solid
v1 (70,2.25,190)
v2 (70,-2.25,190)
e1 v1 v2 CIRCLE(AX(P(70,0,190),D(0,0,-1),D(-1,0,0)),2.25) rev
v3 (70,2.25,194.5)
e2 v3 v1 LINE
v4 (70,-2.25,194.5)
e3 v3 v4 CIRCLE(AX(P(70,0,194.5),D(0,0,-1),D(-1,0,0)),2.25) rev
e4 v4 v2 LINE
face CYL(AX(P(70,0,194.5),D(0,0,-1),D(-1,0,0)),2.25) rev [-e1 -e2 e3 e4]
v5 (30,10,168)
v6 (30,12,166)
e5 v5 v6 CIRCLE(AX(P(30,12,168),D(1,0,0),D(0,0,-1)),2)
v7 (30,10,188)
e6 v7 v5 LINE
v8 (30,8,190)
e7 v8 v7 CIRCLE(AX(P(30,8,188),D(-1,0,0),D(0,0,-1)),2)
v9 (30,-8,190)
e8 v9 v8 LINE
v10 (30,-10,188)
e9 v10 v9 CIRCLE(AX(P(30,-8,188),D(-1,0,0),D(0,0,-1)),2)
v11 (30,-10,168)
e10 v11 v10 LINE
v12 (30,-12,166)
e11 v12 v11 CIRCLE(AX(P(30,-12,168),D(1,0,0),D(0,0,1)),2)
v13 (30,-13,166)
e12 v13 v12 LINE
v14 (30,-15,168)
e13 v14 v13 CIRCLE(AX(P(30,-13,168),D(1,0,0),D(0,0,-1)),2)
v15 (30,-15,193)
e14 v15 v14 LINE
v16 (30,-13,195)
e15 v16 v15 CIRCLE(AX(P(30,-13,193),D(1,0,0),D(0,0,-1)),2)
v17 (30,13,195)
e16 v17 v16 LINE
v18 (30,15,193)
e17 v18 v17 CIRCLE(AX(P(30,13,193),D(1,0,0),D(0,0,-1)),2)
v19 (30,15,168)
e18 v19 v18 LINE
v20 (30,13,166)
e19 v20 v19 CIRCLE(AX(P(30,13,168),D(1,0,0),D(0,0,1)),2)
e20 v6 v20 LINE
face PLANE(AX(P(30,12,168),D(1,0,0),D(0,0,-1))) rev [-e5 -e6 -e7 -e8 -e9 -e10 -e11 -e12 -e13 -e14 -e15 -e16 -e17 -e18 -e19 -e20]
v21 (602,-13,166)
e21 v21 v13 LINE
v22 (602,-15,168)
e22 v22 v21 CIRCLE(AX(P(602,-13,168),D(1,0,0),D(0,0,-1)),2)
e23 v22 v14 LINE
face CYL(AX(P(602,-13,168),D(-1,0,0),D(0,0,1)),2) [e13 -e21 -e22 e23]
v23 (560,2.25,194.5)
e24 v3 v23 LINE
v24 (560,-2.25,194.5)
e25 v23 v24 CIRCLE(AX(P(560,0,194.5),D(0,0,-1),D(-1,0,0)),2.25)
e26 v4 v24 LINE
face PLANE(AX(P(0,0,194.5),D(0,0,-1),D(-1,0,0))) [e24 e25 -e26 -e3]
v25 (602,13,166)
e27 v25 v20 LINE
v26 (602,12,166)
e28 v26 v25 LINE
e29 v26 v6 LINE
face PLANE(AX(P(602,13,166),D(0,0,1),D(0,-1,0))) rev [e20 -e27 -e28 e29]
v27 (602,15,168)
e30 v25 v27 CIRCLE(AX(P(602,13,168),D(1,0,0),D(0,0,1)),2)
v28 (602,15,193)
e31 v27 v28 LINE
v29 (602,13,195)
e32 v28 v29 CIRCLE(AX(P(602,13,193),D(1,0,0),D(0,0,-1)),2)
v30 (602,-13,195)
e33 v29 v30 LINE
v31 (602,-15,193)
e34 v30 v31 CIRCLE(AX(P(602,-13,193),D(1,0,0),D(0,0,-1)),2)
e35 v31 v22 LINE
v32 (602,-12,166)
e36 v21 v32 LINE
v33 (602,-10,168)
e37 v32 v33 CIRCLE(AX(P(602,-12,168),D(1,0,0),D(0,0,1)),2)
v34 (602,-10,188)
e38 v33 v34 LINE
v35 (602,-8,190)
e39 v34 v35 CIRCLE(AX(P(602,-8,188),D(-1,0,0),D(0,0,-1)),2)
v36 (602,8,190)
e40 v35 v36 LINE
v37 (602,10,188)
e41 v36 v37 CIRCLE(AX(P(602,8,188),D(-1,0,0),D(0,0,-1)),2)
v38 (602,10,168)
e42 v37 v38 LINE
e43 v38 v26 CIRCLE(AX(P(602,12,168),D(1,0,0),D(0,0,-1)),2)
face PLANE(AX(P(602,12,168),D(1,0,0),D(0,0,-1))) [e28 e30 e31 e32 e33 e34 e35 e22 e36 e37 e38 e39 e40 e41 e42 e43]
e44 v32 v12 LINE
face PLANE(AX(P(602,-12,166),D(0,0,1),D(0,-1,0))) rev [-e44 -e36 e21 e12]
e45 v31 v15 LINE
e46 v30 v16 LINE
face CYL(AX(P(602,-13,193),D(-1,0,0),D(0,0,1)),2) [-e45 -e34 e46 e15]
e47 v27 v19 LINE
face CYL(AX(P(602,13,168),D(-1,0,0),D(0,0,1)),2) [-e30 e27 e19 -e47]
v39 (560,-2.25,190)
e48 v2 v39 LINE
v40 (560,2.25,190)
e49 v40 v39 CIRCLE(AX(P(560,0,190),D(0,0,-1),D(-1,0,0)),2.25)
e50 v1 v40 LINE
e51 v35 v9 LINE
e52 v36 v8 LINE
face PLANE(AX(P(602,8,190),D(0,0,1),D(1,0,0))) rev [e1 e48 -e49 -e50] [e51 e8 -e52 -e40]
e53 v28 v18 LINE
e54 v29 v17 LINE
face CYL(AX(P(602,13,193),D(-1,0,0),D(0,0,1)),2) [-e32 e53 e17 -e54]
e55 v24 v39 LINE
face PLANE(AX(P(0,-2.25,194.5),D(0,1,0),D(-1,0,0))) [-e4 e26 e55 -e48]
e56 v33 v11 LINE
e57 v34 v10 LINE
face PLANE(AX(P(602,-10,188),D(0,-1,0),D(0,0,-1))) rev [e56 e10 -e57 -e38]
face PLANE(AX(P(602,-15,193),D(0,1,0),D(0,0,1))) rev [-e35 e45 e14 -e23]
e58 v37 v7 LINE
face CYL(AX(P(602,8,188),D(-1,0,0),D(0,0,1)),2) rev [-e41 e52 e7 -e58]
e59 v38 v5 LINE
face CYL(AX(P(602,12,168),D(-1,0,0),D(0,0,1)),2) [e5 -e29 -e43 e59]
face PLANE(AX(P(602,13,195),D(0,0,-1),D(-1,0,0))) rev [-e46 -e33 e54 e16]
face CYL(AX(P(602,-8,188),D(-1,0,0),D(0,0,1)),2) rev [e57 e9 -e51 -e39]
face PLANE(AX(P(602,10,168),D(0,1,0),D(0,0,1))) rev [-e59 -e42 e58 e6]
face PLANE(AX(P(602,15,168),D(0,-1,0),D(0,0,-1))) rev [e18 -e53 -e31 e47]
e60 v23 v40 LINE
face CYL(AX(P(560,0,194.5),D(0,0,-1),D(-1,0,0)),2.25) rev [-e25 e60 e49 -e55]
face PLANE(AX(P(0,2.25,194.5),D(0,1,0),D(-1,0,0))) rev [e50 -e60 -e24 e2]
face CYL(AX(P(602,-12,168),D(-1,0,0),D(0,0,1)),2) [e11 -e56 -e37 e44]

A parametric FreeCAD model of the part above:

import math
import FreeCAD as App
import Part
import Sketcher
from FreeCAD import Vector
Q = App.Units.Quantity

doc = App.newDocument("Part")
body = doc.addObject("PartDesign::Body", "Body")

# Sketch on YZ plane
sketch1 = body.newObject("Sketcher::SketchObject", "Sketch")
sketch1.AttachmentSupport = (doc.getObject("YZ_Plane"), [""])
sketch1.MapMode = "FlatFace"
sketch1.AttachmentOffset = App.Placement(Vector(0, 0, 30), App.Rotation())
sketch1.addGeometry([
    Part.LineSegment(Vector(10, 188, 0), Vector(10, 168, 0)),  # 0
    Part.ArcOfCircle(Part.Circle(Vector(12, 168, 0), Vector(0, 0, 1), 2), math.radians(-180), math.radians(-90)),  # 1
    Part.LineSegment(Vector(12, 166, 0), Vector(13, 166, 0)),  # 2
    Part.ArcOfCircle(Part.Circle(Vector(13, 168, 0), Vector(0, 0, 1), 2), math.radians(-90), math.radians(0)),  # 3
    Part.LineSegment(Vector(15, 168, 0), Vector(15, 193, 0)),  # 4
    Part.ArcOfCircle(Part.Circle(Vector(13, 193, 0), Vector(0, 0, 1), 2), math.radians(0), math.radians(90)),  # 5
    Part.LineSegment(Vector(13, 195, 0), Vector(-13, 195, 0)),  # 6
    Part.ArcOfCircle(Part.Circle(Vector(-13, 193, 0), Vector(0, 0, 1), 2), math.radians(90), math.radians(180)),  # 7
    Part.LineSegment(Vector(-15, 193, 0), Vector(-15, 168, 0)),  # 8
    Part.ArcOfCircle(Part.Circle(Vector(-13, 168, 0), Vector(0, 0, 1), 2), math.radians(-180), math.radians(-90)),  # 9
    Part.LineSegment(Vector(-13, 166, 0), Vector(-12, 166, 0)),  # 10
    Part.ArcOfCircle(Part.Circle(Vector(-12, 168, 0), Vector(0, 0, 1), 2), math.radians(-90), math.radians(0)),  # 11
    Part.LineSegment(Vector(-10, 168, 0), Vector(-10, 188, 0)),  # 12
    Part.ArcOfCircle(Part.Circle(Vector(-8, 188, 0), Vector(0, 0, 1), 2), math.radians(90), math.radians(180)),  # 13
    Part.LineSegment(Vector(-8, 190, 0), Vector(8, 190, 0)),  # 14
    Part.ArcOfCircle(Part.Circle(Vector(8, 188, 0), Vector(0, 0, 1), 2), math.radians(0), math.radians(90)),  # 15
], False)
sketch1.addConstraint([
    Sketcher.Constraint("Tangent", 0, 2, 1, 1),
    Sketcher.Constraint("Tangent", 1, 2, 2, 1),
    Sketcher.Constraint("Tangent", 2, 2, 3, 1),
    Sketcher.Constraint("Tangent", 3, 2, 4, 1),
    Sketcher.Constraint("Tangent", 4, 2, 5, 1),
    Sketcher.Constraint("Tangent", 5, 2, 6, 1),
    Sketcher.Constraint("Tangent", 6, 2, 7, 1),
    Sketcher.Constraint("Tangent", 7, 2, 8, 1),
    Sketcher.Constraint("Tangent", 8, 2, 9, 1),
    Sketcher.Constraint("Tangent", 9, 2, 10, 1),
    Sketcher.Constraint("Tangent", 10, 2, 11, 1),
    Sketcher.Constraint("Tangent", 11, 2, 12, 1),
    Sketcher.Constraint("Tangent", 12, 2, 13, 2),
    Sketcher.Constraint("Tangent", 13, 1, 14, 1),
    Sketcher.Constraint("Tangent", 14, 2, 15, 2),
    Sketcher.Constraint("Tangent", 15, 1, 0, 1),
    Sketcher.Constraint("Vertical", 0),
    Sketcher.Constraint("Horizontal", 2),
    Sketcher.Constraint("Vertical", 4),
    Sketcher.Constraint("Horizontal", 6),
    Sketcher.Constraint("Vertical", 8),
    Sketcher.Constraint("Horizontal", 10),
    Sketcher.Constraint("Vertical", 12),
    Sketcher.Constraint("Horizontal", 14),
    Sketcher.Constraint("Equal", 1, 3),
    Sketcher.Constraint("Equal", 3, 5),
    Sketcher.Constraint("Equal", 5, 7),
    Sketcher.Constraint("Equal", 7, 9),
    Sketcher.Constraint("Equal", 9, 11),
    Sketcher.Constraint("Equal", 11, 13),
    Sketcher.Constraint("Equal", 13, 15),
    Sketcher.Constraint("Symmetric", 3, 3, 9, 3, -2),
    Sketcher.Constraint("Equal", 2, 10),
    Sketcher.Constraint("Radius", 1, Q("2 mm")),
    Sketcher.Constraint("DistanceX", 2, 1, 2, 2, Q("1 mm")),
    Sketcher.Constraint("DistanceX", 6, 2, 6, 1, Q("26 mm")),
    Sketcher.Constraint("DistanceY", 0, 2, 0, 1, Q("20 mm")),
    Sketcher.Constraint("DistanceY", 4, 1, 4, 2, Q("25 mm")),
    Sketcher.Constraint("DistanceY", -1, 1, 1, 3, Q("168 mm")),
])
pad1 = body.newObject("PartDesign::Pad", "Pad")
pad1.Profile = sketch1
pad1.Length = 572

# Sketch on XY plane
sketch2 = body.newObject("Sketcher::SketchObject", "Sketch001")
sketch2.AttachmentSupport = (doc.getObject("XY_Plane"), [""])
sketch2.MapMode = "FlatFace"
sketch2.AttachmentOffset = App.Placement(Vector(0, 0, 190), App.Rotation())
sketch2.addGeometry([
    Part.ArcOfCircle(Part.Circle(Vector(70, 0, 0), Vector(0, 0, 1), 2.2), math.radians(90), math.radians(180)),  # 0
    Part.LineSegment(Vector(70, 2.2, 0), Vector(560, 2.2, 0)),  # 1
    Part.ArcOfCircle(Part.Circle(Vector(560, 0, 0), Vector(0, 0, 1), 2.2), math.radians(0), math.radians(90)),  # 2
    Part.ArcOfCircle(Part.Circle(Vector(560, 0, 0), Vector(0, 0, 1), 2.2), math.radians(-90), math.radians(0)),  # 3
    Part.LineSegment(Vector(560, -2.2, 0), Vector(70, -2.2, 0)),  # 4
    Part.ArcOfCircle(Part.Circle(Vector(70, 0, 0), Vector(0, 0, 1), 2.2), math.radians(180), math.radians(270)),  # 5
], False)
sketch2.addConstraint([
    Sketcher.Constraint("Tangent", 0, 1, 1, 1),
    Sketcher.Constraint("Tangent", 1, 2, 2, 2),
    Sketcher.Constraint("Tangent", 2, 1, 3, 2),
    Sketcher.Constraint("Tangent", 3, 1, 4, 1),
    Sketcher.Constraint("Tangent", 4, 2, 5, 2),
    Sketcher.Constraint("Tangent", 5, 1, 0, 2),
    Sketcher.Constraint("Horizontal", 1),
    Sketcher.Constraint("Horizontal", 4),
    Sketcher.Constraint("Equal", 0, 2),
    Sketcher.Constraint("Equal", 2, 3),
    Sketcher.Constraint("PointOnObject", 0, 3, -1),
    Sketcher.Constraint("PointOnObject", 2, 1, -1),
    Sketcher.Constraint("PointOnObject", 5, 1, -1),
    Sketcher.Constraint("DistanceX", 1, 1, 1, 2, Q("490 mm")),
    Sketcher.Constraint("Radius", 0, Q("2.25 mm")),
    Sketcher.Constraint("DistanceX", -1, 1, 0, 3, Q("70 mm")),
])
pocket1 = body.newObject("PartDesign::Pocket", "Pocket")
pocket1.Profile = sketch2
pocket1.Length = 4.5
pocket1.Reversed = True

doc.recompute()
